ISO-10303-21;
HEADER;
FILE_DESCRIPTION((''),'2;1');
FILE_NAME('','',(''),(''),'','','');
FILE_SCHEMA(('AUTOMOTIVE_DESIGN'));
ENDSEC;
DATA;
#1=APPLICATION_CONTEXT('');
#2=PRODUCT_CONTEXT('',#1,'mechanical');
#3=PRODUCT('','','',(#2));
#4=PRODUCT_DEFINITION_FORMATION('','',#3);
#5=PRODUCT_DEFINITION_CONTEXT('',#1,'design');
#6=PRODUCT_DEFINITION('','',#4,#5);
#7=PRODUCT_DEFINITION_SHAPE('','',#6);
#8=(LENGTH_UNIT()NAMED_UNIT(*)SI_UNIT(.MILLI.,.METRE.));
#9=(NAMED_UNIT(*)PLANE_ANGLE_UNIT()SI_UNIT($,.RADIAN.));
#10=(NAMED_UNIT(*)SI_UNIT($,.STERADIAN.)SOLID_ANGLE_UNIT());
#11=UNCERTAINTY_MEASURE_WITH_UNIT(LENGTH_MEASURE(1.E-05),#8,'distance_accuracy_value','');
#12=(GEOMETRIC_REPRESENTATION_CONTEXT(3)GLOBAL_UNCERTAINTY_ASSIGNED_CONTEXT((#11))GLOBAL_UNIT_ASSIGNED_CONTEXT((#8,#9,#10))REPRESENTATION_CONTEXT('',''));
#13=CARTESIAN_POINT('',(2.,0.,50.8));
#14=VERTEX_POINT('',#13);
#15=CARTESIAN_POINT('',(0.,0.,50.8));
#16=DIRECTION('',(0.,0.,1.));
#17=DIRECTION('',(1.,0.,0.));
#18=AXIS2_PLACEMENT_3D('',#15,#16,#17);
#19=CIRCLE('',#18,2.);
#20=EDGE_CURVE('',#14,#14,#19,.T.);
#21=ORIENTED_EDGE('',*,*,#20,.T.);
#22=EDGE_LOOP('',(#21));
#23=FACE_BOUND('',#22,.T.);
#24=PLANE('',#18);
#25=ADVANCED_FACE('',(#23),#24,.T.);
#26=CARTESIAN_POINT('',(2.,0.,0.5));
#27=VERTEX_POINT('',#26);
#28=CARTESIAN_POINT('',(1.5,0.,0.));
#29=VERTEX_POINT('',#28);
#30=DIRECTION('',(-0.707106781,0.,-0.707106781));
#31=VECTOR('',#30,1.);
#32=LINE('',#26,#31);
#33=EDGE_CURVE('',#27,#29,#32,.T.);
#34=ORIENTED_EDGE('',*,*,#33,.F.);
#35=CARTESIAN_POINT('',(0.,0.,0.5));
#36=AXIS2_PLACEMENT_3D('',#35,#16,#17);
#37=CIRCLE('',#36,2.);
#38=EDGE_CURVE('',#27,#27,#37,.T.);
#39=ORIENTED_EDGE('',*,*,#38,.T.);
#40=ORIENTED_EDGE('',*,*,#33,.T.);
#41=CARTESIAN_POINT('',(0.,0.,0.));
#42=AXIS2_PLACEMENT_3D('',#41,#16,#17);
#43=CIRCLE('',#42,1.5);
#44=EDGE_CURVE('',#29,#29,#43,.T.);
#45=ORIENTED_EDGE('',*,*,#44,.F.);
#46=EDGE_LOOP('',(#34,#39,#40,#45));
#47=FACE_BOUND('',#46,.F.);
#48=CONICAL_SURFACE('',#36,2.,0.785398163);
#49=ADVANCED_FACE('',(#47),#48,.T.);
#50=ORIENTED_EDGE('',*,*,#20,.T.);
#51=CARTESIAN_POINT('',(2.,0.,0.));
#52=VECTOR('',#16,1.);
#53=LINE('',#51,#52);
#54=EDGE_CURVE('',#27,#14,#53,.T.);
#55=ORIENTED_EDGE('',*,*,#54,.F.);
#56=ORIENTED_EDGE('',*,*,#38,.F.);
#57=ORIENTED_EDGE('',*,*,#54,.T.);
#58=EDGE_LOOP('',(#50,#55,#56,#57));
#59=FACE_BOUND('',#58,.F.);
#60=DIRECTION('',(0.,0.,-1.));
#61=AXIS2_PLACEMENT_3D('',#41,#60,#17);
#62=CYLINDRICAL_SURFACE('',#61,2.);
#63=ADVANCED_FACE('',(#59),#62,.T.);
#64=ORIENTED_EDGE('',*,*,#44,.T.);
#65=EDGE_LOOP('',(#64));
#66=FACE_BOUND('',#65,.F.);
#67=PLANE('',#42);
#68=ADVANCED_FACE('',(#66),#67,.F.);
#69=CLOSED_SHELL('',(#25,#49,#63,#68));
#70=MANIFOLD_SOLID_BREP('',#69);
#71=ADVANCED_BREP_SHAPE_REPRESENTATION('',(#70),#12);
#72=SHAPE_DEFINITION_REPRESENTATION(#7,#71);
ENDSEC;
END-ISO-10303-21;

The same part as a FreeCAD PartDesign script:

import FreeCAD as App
import Part
import Sketcher
from FreeCAD import Vector


def edges_at(feature, points):
    """Names of the edges that pass closest to the given points."""
    edges = feature.Shape.Edges
    near = lambda p: min(range(len(edges)), key=lambda i: edges[i].distToShape(Part.Vertex(*p))[0])
    return sorted({f"Edge{near(p) + 1}" for p in points})

doc = App.newDocument("Part")
body = doc.addObject("PartDesign::Body", "Body")

# Sketch on XY plane
sketch1 = body.newObject("Sketcher::SketchObject", "Sketch")
sketch1.AttachmentSupport = (doc.getObject("XY_Plane"), [""])
sketch1.MapMode = "FlatFace"
sketch1.addGeometry(Part.Circle(Vector(0, 0, 0), Vector(0, 0, 1), 2), False)
sketch1.addConstraint([
    Sketcher.Constraint("Coincident", 0, 3, -1, 1),
    Sketcher.Constraint("Diameter", 0, 4.0),
])
pad1 = body.newObject("PartDesign::Pad", "Pad")
pad1.Profile = sketch1
pad1.Length = 50.8
doc.recompute()

chamfer = body.newObject("PartDesign::Chamfer", "Chamfer")
chamfer.Base = (pad1, edges_at(pad1, [(-2, 0, 0)]))
chamfer.Size = 0.5

doc.recompute()
